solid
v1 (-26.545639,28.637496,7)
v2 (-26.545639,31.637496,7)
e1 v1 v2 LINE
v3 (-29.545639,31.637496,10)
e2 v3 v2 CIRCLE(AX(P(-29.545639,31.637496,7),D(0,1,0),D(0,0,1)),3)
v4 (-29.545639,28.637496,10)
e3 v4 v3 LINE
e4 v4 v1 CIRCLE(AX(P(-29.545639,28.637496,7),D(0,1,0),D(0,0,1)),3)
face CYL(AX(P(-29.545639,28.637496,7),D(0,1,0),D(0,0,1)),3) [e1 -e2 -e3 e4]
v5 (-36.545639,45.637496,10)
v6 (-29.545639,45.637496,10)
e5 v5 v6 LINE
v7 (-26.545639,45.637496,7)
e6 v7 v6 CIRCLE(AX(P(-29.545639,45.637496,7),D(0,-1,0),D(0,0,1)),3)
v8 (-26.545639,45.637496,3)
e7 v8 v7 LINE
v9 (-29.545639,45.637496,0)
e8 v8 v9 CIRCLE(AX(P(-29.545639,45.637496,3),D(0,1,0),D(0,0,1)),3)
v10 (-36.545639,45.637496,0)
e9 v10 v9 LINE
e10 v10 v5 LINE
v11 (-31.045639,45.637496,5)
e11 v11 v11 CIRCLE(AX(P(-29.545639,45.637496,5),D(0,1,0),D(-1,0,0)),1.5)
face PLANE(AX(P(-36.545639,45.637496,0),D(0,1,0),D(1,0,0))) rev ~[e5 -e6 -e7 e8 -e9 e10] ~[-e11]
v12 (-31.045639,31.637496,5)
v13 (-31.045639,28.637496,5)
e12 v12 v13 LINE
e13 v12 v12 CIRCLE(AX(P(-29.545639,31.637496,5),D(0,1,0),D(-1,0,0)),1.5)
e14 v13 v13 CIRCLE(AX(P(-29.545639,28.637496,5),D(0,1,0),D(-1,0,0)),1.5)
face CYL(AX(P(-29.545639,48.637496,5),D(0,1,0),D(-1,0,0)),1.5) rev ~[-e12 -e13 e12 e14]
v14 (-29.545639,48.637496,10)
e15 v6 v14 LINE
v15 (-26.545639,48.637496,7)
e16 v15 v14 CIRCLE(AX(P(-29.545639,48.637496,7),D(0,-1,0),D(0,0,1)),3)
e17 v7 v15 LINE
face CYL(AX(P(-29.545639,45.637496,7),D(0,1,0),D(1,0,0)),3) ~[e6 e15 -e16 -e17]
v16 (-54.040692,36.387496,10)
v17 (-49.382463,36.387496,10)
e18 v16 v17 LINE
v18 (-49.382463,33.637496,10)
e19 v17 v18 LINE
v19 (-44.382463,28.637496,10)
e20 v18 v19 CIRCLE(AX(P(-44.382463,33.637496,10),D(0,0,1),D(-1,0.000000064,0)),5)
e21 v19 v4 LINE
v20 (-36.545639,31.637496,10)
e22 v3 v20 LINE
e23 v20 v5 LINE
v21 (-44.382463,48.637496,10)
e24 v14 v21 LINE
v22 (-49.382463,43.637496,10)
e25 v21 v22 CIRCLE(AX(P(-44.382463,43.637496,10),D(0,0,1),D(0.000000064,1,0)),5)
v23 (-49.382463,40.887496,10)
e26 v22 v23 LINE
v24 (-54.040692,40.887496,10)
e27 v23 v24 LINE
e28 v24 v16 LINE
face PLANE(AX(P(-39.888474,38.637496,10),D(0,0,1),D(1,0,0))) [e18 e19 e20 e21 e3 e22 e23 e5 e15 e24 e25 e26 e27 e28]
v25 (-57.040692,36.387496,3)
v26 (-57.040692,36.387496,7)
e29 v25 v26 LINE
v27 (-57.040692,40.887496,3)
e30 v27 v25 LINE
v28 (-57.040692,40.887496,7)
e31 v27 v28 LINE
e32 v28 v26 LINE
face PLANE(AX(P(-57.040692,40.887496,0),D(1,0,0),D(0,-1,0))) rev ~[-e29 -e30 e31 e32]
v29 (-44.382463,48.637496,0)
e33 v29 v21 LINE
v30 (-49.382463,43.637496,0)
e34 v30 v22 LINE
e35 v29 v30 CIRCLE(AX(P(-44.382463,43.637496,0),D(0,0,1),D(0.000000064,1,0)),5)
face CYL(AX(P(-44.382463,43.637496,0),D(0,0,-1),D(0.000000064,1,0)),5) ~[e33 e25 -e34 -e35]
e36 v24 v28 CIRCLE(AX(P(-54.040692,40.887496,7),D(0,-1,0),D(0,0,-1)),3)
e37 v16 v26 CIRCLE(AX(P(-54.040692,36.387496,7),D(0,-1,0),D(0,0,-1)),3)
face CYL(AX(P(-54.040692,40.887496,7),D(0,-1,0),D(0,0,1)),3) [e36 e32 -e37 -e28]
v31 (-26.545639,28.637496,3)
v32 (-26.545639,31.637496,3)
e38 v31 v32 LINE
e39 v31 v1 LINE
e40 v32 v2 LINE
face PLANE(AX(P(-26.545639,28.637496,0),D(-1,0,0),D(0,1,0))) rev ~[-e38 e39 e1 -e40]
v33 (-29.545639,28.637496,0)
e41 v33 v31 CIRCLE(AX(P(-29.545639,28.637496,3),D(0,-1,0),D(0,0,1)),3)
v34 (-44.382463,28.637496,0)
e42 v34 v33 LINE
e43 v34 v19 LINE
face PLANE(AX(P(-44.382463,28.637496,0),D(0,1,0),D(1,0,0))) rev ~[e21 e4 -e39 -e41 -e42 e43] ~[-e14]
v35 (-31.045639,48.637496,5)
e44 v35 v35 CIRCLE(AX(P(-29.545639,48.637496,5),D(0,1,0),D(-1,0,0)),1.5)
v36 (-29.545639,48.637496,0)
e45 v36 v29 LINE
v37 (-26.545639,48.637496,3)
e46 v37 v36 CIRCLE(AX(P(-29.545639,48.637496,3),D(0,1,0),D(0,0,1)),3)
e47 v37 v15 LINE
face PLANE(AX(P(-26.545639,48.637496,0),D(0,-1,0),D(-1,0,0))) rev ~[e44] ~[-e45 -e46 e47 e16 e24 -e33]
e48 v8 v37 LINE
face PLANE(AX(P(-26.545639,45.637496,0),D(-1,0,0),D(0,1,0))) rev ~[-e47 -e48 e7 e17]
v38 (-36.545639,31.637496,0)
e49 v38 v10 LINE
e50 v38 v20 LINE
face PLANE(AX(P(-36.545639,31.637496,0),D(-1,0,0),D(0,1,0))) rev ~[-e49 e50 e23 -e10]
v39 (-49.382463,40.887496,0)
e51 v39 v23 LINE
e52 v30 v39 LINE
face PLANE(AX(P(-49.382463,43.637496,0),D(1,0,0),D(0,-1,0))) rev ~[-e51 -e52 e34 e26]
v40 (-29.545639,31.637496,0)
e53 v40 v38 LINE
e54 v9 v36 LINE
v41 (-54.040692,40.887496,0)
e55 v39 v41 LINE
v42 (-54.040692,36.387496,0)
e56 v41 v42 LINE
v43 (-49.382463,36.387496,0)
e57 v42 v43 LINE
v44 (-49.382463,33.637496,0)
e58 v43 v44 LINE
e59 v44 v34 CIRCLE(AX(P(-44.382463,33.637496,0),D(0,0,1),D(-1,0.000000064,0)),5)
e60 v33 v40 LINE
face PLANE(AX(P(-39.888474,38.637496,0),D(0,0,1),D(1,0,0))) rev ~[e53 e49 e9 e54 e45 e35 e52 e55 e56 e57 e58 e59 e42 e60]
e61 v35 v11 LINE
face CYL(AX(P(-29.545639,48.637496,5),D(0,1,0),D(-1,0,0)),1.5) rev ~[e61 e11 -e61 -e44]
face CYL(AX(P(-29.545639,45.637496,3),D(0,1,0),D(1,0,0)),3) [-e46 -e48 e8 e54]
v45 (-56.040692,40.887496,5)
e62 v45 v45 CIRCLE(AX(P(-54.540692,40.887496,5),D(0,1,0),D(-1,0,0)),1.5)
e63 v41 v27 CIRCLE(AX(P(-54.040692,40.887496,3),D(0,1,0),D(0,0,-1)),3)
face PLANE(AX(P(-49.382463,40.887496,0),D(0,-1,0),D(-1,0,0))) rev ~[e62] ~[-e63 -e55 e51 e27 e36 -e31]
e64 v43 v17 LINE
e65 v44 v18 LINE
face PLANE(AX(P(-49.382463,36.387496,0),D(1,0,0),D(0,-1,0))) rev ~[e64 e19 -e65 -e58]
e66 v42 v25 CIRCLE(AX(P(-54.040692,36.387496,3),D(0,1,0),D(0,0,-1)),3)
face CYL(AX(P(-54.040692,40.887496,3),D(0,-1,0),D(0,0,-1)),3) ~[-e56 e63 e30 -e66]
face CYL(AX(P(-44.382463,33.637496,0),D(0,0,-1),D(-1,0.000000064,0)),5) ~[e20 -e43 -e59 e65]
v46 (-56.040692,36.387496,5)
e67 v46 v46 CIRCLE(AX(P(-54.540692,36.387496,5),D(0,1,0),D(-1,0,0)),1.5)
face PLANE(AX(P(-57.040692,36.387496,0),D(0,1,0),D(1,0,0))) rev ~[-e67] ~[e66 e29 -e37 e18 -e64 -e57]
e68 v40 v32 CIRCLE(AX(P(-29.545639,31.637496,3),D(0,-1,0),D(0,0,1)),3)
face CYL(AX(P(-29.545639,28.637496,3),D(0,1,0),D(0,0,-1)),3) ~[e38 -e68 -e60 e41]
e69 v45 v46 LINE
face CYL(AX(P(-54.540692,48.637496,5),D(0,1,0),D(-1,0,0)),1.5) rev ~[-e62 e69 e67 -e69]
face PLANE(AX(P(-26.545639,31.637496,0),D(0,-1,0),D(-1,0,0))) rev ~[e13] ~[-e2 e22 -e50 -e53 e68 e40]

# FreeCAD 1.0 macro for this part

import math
import FreeCAD as App
import Part
import Sketcher
from FreeCAD import Vector


def edges_at(feature, points):
    """Names of the edges that pass closest to the given points."""
    edges = feature.Shape.Edges
    near = lambda p: min(range(len(edges)), key=lambda i: edges[i].distToShape(Part.Vertex(*p))[0])
    return sorted({f"Edge{near(p) + 1}" for p in points})

doc = App.newDocument("Part")
params = doc.addObject("Spreadsheet::Sheet", "Params")
for row, (alias, value) in enumerate([
    ("sketch1_radius", "5 mm"),
    ("sketch1_width", "10 mm"),
    ("sketch1_height", "3 mm"),
    ("sketch1_height2", "14 mm"),
    ("sketch1_height3", "4.5 mm"),
    ("pad1_length", "10 mm"),
    ("sketch2_diameter", "3 mm"),
    ("pocket1_length", "25 mm"),
    ("fillet_radius", "3 mm"),
], start=1):
    params.set(f"A{row}", alias)
    params.set(f"B{row}", "=" + value)
    params.setAlias(f"B{row}", alias)

body = doc.addObject("PartDesign::Body", "Body")

# Sketch on XY plane
sketch1 = doc.addObject("Sketcher::SketchObject", "Sketch")
body.addObject(sketch1)
sketch1.AttachmentSupport = (doc.XY_Plane, [""])
sketch1.MapMode = "FlatFace"
sketch1.addGeometry(Part.LineSegment(Vector(-26.5, 48.6, 0), Vector(-44.4, 48.6, 0)), False)
sketch1.addGeometry(Part.ArcOfCircle(Part.Circle(Vector(-44.4, 43.6, 0), Vector(0, 0, 1), 5), math.radians(90), math.radians(180)), False)
sketch1.addGeometry(Part.LineSegment(Vector(-49.4, 43.6, 0), Vector(-49.4, 40.9, 0)), False)
sketch1.addGeometry(Part.LineSegment(Vector(-49.4, 40.9, 0), Vector(-57, 40.9, 0)), False)
sketch1.addGeometry(Part.LineSegment(Vector(-57, 40.9, 0), Vector(-57, 36.4, 0)), False)
sketch1.addGeometry(Part.LineSegment(Vector(-57, 36.4, 0), Vector(-49.4, 36.4, 0)), False)
sketch1.addGeometry(Part.LineSegment(Vector(-49.4, 36.4, 0), Vector(-49.4, 33.6, 0)), False)
sketch1.addGeometry(Part.ArcOfCircle(Part.Circle(Vector(-44.4, 33.6, 0), Vector(0, 0, 1), 5), math.radians(180), math.radians(270)), False)
sketch1.addGeometry(Part.LineSegment(Vector(-44.4, 28.6, 0), Vector(-26.5, 28.6, 0)), False)
sketch1.addGeometry(Part.LineSegment(Vector(-26.5, 28.6, 0), Vector(-26.5, 31.6, 0)), False)
sketch1.addGeometry(Part.LineSegment(Vector(-26.5, 31.6, 0), Vector(-36.5, 31.6, 0)), False)
sketch1.addGeometry(Part.LineSegment(Vector(-36.5, 31.6, 0), Vector(-36.5, 45.6, 0)), False)
sketch1.addGeometry(Part.LineSegment(Vector(-36.5, 45.6, 0), Vector(-26.5, 45.6, 0)), False)
sketch1.addGeometry(Part.LineSegment(Vector(-26.5, 45.6, 0), Vector(-26.5, 48.6, 0)), False)
sketch1.addConstraint(Sketcher.Constraint("Tangent", 0, 2, 1, 1))
sketch1.addConstraint(Sketcher.Constraint("Tangent", 1, 2, 2, 1))
sketch1.addConstraint(Sketcher.Constraint("Coincident", 2, 2, 3, 1))
sketch1.addConstraint(Sketcher.Constraint("Coincident", 3, 2, 4, 1))
sketch1.addConstraint(Sketcher.Constraint("Coincident", 4, 2, 5, 1))
sketch1.addConstraint(Sketcher.Constraint("Coincident", 5, 2, 6, 1))
sketch1.addConstraint(Sketcher.Constraint("Tangent", 6, 2, 7, 1))
sketch1.addConstraint(Sketcher.Constraint("Tangent", 7, 2, 8, 1))
sketch1.addConstraint(Sketcher.Constraint("Coincident", 8, 2, 9, 1))
sketch1.addConstraint(Sketcher.Constraint("Coincident", 9, 2, 10, 1))
sketch1.addConstraint(Sketcher.Constraint("Coincident", 10, 2, 11, 1))
sketch1.addConstraint(Sketcher.Constraint("Coincident", 11, 2, 12, 1))
sketch1.addConstraint(Sketcher.Constraint("Coincident", 12, 2, 13, 1))
sketch1.addConstraint(Sketcher.Constraint("Coincident", 13, 2, 0, 1))
sketch1.addConstraint(Sketcher.Constraint("Horizontal", 0))
sketch1.addConstraint(Sketcher.Constraint("Vertical", 2))
sketch1.addConstraint(Sketcher.Constraint("Horizontal", 3))
sketch1.addConstraint(Sketcher.Constraint("Vertical", 4))
sketch1.addConstraint(Sketcher.Constraint("Horizontal", 5))
sketch1.addConstraint(Sketcher.Constraint("Vertical", 6))
sketch1.addConstraint(Sketcher.Constraint("Horizontal", 8))
sketch1.addConstraint(Sketcher.Constraint("Vertical", 9))
sketch1.addConstraint(Sketcher.Constraint("Horizontal", 10))
sketch1.addConstraint(Sketcher.Constraint("Vertical", 11))
sketch1.addConstraint(Sketcher.Constraint("Horizontal", 12))
sketch1.addConstraint(Sketcher.Constraint("Vertical", 13))
sketch1.addConstraint(Sketcher.Constraint("Equal", 1, 7))
sketch1.addConstraint(Sketcher.Constraint("Vertical", 1, 3, 7, 3))
sketch1.addConstraint(Sketcher.Constraint("Vertical", 9, 2, 12, 2))
sketch1.addConstraint(Sketcher.Constraint("Equal", 2, 6))
sketch1.addConstraint(Sketcher.Constraint("Equal", 9, 13))
sketch1.addConstraint(Sketcher.Constraint("Radius", 1, 5.0))
sketch1.addConstraint(Sketcher.Constraint("DistanceX", 10, 2, 10, 1, 10.0))
sketch1.addConstraint(Sketcher.Constraint("DistanceY", 9, 1, 9, 2, 3.0))
sketch1.addConstraint(Sketcher.Constraint("DistanceY", 11, 1, 11, 2, 14.0))
sketch1.addConstraint(Sketcher.Constraint("DistanceY", 4, 2, 4, 1, 4.5))
sketch1.addConstraint(Sketcher.Constraint("DistanceX", 3, 2, 3, 1, 7.658229))
sketch1.addConstraint(Sketcher.Constraint("DistanceX", 0, 2, 0, 1, 17.836824))
sketch1.addConstraint(Sketcher.Constraint("DistanceX", 8, 2, -1, 1, 26.545639))
sketch1.addConstraint(Sketcher.Constraint("DistanceY", -1, 1, 1, 3, 43.637496))
sketch1.setExpression("Constraints[31]", "Params.sketch1_radius")
sketch1.setExpression("Constraints[32]", "Params.sketch1_width")
sketch1.setExpression("Constraints[33]", "Params.sketch1_height")
sketch1.setExpression("Constraints[34]", "Params.sketch1_height2")
sketch1.setExpression("Constraints[35]", "Params.sketch1_height3")
pad1 = doc.addObject("PartDesign::Pad", "Pad")
body.addObject(pad1)
pad1.Profile = sketch1
pad1.setExpression("Length", "Params.pad1_length")

# Sketch on XZ plane
sketch2 = doc.addObject("Sketcher::SketchObject", "Sketch001")
body.addObject(sketch2)
sketch2.AttachmentSupport = (doc.XZ_Plane, [""])
sketch2.MapMode = "FlatFace"
sketch2.AttachmentOffset = App.Placement(Vector(0, 0, -48.637496), App.Rotation())
sketch2.addGeometry(Part.Circle(Vector(-54.5, 5, 0), Vector(0, 0, 1), 1.5), False)
sketch2.addGeometry(Part.Circle(Vector(-29.5, 5, 0), Vector(0, 0, 1), 1.5), False)
sketch2.addConstraint(Sketcher.Constraint("Equal", 0, 1))
sketch2.addConstraint(Sketcher.Constraint("Horizontal", 0, 3, 1, 3))
sketch2.addConstraint(Sketcher.Constraint("Diameter", 0, 3.0))
sketch2.addConstraint(Sketcher.Constraint("DistanceY", -1, 1, 0, 3, 5.0))
sketch2.addConstraint(Sketcher.Constraint("DistanceX", 1, 3, -1, 1, 29.545639))
sketch2.addConstraint(Sketcher.Constraint("DistanceX", 0, 3, -1, 1, 54.540692))
sketch2.setExpression("Constraints[2]", "Params.sketch2_diameter")
pocket1 = doc.addObject("PartDesign::Pocket", "Pocket")
body.addObject(pocket1)
pocket1.Profile = sketch2
pocket1.setExpression("Length", "Params.pocket1_length")
pocket1.Reversed = True
doc.recompute()

fillet = doc.addObject("PartDesign::Fillet", "Fillet")
body.addObject(fillet)
fillet.Base = (pocket1, edges_at(pocket1, [
    (-57.041, 38.637, 10),
    (-57.041, 38.637, 0),
    (-26.546, 47.137, 10),
    (-26.546, 30.137, 10),
    (-26.546, 47.137, 0),
    (-26.546, 30.137, 0),
]))
fillet.setExpression("Radius", "Params.fillet_radius")

doc.recompute()
